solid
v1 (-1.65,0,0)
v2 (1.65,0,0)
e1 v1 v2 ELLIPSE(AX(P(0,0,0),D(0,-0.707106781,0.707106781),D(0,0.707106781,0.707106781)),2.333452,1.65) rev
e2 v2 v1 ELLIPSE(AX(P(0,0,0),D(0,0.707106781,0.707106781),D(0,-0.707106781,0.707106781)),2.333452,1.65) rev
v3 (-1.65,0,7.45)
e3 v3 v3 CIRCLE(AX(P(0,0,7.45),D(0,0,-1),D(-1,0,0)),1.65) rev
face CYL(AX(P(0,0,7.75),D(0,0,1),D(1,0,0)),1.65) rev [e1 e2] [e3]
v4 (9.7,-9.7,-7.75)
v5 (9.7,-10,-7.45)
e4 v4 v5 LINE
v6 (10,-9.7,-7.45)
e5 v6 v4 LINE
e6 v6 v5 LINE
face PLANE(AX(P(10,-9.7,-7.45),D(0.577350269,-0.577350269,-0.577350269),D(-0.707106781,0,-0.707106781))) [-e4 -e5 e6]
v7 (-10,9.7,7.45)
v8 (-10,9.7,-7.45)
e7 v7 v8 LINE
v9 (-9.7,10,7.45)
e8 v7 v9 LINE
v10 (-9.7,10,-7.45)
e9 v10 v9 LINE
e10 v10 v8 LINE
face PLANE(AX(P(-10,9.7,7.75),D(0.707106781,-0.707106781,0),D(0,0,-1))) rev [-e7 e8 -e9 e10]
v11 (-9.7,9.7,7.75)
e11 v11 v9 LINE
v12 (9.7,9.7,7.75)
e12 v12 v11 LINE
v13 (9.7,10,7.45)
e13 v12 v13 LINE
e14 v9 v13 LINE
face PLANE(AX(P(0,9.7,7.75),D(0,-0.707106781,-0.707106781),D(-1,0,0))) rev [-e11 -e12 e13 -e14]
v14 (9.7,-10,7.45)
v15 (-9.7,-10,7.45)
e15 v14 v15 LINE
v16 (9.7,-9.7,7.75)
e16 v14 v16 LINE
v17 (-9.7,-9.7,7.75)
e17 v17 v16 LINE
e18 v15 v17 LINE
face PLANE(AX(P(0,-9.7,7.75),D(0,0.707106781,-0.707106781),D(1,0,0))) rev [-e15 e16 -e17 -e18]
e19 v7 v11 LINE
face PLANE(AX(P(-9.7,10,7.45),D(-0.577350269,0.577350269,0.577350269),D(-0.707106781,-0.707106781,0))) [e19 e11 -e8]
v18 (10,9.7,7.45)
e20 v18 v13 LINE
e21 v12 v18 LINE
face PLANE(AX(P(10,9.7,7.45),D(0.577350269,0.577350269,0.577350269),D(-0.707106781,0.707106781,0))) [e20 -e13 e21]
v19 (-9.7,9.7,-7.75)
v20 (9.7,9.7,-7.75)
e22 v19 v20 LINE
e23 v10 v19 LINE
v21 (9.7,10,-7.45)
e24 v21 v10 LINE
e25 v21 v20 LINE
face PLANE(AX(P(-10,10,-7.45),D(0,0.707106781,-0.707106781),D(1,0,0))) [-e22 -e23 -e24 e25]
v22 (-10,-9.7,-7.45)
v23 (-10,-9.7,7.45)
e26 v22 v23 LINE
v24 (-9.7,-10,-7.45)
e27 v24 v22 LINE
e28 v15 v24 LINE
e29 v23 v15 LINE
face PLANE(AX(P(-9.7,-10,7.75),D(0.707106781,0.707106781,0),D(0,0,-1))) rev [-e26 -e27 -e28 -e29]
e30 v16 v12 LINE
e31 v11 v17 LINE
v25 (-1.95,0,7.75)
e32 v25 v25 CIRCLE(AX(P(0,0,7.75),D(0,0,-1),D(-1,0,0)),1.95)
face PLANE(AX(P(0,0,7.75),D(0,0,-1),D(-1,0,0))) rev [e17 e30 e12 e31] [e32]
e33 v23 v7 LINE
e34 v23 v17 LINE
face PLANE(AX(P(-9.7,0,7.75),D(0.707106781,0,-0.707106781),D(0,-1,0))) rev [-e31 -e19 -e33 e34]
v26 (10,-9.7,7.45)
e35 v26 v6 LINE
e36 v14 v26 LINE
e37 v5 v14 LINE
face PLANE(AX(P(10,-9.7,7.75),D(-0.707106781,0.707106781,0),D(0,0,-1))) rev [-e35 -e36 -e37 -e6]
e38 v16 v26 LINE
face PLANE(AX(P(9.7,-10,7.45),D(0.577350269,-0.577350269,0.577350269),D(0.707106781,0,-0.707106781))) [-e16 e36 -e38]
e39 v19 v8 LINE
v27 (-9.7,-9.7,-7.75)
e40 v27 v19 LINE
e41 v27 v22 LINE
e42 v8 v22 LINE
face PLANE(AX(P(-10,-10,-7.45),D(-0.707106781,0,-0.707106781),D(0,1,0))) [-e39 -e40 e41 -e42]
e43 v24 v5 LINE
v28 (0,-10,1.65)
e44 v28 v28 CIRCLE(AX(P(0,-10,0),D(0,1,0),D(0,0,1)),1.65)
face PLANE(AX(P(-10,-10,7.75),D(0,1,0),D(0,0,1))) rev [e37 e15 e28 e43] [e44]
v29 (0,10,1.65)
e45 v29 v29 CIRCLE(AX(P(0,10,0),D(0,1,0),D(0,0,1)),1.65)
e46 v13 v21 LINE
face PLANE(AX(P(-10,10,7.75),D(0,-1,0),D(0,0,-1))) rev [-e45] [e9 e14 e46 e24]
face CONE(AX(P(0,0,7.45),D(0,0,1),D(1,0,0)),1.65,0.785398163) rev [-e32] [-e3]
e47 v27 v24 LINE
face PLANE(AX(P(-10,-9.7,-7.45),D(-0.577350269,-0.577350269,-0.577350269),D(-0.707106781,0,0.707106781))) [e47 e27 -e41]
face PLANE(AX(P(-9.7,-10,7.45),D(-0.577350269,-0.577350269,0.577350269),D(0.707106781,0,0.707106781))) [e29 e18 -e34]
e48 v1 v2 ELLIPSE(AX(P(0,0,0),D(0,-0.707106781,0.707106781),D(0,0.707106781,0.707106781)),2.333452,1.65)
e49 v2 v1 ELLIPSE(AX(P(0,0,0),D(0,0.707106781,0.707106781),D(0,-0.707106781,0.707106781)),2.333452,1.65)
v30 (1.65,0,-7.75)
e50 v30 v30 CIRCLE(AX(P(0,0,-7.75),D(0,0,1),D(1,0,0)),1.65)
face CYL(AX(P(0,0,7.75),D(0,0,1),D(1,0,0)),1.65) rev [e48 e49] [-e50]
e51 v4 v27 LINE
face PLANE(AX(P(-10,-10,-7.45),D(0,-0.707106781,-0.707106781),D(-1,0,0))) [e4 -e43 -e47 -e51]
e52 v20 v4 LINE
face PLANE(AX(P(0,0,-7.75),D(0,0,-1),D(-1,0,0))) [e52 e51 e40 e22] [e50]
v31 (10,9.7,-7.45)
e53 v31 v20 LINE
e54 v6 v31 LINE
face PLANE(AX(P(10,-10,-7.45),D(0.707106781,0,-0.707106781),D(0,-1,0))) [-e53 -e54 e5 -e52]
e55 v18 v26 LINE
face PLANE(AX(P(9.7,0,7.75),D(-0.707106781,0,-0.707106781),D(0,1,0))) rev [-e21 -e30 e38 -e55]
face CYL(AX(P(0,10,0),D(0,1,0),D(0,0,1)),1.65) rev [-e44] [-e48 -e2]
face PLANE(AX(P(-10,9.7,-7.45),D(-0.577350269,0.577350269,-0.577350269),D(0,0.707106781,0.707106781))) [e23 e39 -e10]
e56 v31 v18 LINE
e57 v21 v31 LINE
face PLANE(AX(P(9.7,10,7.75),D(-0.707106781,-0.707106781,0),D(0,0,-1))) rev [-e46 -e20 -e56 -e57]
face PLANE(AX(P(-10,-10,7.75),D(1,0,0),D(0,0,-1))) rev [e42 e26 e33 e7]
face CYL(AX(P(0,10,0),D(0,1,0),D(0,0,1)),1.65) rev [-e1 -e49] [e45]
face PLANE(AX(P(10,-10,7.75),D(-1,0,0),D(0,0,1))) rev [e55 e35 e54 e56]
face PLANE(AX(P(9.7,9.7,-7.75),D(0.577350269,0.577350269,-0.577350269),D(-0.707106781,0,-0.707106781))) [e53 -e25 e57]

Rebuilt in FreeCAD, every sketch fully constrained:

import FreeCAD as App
import Part
import Sketcher
Q = App.Units.Quantity


def edges_at(feature, points):
    """Names of the edges that pass closest to the given points."""
    edges = feature.Shape.Edges
    near = lambda p: min(range(len(edges)), key=lambda i: edges[i].distToShape(Part.Vertex(*p))[0])
    return sorted({f"Edge{near(p) + 1}" for p in points})

doc = App.newDocument("Part")
body = doc.addObject("PartDesign::Body", "Body")

# Sketch on XY plane
sketch1 = body.newObject("Sketcher::SketchObject", "Sketch")
sketch1.AttachmentSupport = (doc.getObject("XY_Plane"), [""])
sketch1.MapMode = "FlatFace"
sketch1.addGeometry([
    Part.LineSegment(App.Vector(-10, 10, 0), App.Vector(-10, -10, 0)),
    Part.LineSegment(App.Vector(-10, -10, 0), App.Vector(10, -10, 0)),
    Part.LineSegment(App.Vector(10, -10, 0), App.Vector(10, 10, 0)),
    Part.LineSegment(App.Vector(10, 10, 0), App.Vector(-10, 10, 0)),
], False)
sketch1.addConstraint([
    Sketcher.Constraint("Coincident", 0, 2, 1, 1),
    Sketcher.Constraint("Coincident", 1, 2, 2, 1),
    Sketcher.Constraint("Coincident", 2, 2, 3, 1),
    Sketcher.Constraint("Coincident", 3, 2, 0, 1),
    Sketcher.Constraint("Vertical", 0),
    Sketcher.Constraint("Horizontal", 1),
    Sketcher.Constraint("Vertical", 2),
    Sketcher.Constraint("Horizontal", 3),
    Sketcher.Constraint("Symmetric", 0, 2, 2, 2, -1, 1),
    Sketcher.Constraint("Equal", 3, 0),
    Sketcher.Constraint("DistanceX", 1, 1, 1, 2, Q("20 mm")),
])
pad1 = body.newObject("PartDesign::Pad", "Pad")
pad1.Profile = sketch1
pad1.Length = 15.5
pad1.Midplane = True

# Sketch on XY plane
sketch2 = body.newObject("Sketcher::SketchObject", "Sketch001")
sketch2.AttachmentSupport = (doc.getObject("XY_Plane"), [""])
sketch2.MapMode = "FlatFace"
sketch2.AttachmentOffset = App.Placement(App.Vector(0, 0, 7.75), App.Rotation())
sketch2.addGeometry(Part.Circle(App.Vector(0, 0, 0), App.Vector(0, 0, 1), 1.65), False)
sketch2.addConstraint([
    Sketcher.Constraint("Coincident", 0, 3, -1, 1),
    Sketcher.Constraint("Diameter", 0, Q("3.3 mm")),
])
doc.recompute()
hole = body.newObject("PartDesign::Hole", "Hole")
hole.Profile = sketch2
hole.ThreadType = "None"
hole.Diameter = 3.3
hole.DepthType = "ThroughAll"

# Sketch on XZ plane
sketch3 = body.newObject("Sketcher::SketchObject", "Sketch002")
sketch3.AttachmentSupport = (doc.getObject("XZ_Plane"), [""])
sketch3.MapMode = "FlatFace"
sketch3.AttachmentOffset = App.Placement(App.Vector(0, 0, -10), App.Rotation())
sketch3.addGeometry(Part.Circle(App.Vector(0, 0, 0), App.Vector(0, 0, 1), 1.65), False)
sketch3.addConstraint([
    Sketcher.Constraint("Coincident", 0, 3, -1, 1),
    Sketcher.Constraint("Diameter", 0, Q("3.3 mm")),
])
doc.recompute()
hole2 = body.newObject("PartDesign::Hole", "Hole001")
hole2.Profile = sketch3
hole2.ThreadType = "None"
hole2.Diameter = 3.3
hole2.DepthType = "ThroughAll"
hole2.Reversed = True
doc.recompute()

chamfer = body.newObject("PartDesign::Chamfer", "Chamfer")
chamfer.Base = (hole2, edges_at(hole2, [
    (-10, 0, 7.75),
    (1.65, 0, 7.75),
    (0, -10, 7.75),
    (10, 0, 7.75),
    (0, -10, -7.75),
    (-10, 0, -7.75),
    (0, 10, -7.75),
    (10, 0, -7.75),
    (10, -10, 0),
    (-10, -10, 0),
    (-10, 10, 0),
    (10, 10, 0),
    (0, 10, 7.75),
]))
chamfer.Size = 0.3

doc.recompute()
